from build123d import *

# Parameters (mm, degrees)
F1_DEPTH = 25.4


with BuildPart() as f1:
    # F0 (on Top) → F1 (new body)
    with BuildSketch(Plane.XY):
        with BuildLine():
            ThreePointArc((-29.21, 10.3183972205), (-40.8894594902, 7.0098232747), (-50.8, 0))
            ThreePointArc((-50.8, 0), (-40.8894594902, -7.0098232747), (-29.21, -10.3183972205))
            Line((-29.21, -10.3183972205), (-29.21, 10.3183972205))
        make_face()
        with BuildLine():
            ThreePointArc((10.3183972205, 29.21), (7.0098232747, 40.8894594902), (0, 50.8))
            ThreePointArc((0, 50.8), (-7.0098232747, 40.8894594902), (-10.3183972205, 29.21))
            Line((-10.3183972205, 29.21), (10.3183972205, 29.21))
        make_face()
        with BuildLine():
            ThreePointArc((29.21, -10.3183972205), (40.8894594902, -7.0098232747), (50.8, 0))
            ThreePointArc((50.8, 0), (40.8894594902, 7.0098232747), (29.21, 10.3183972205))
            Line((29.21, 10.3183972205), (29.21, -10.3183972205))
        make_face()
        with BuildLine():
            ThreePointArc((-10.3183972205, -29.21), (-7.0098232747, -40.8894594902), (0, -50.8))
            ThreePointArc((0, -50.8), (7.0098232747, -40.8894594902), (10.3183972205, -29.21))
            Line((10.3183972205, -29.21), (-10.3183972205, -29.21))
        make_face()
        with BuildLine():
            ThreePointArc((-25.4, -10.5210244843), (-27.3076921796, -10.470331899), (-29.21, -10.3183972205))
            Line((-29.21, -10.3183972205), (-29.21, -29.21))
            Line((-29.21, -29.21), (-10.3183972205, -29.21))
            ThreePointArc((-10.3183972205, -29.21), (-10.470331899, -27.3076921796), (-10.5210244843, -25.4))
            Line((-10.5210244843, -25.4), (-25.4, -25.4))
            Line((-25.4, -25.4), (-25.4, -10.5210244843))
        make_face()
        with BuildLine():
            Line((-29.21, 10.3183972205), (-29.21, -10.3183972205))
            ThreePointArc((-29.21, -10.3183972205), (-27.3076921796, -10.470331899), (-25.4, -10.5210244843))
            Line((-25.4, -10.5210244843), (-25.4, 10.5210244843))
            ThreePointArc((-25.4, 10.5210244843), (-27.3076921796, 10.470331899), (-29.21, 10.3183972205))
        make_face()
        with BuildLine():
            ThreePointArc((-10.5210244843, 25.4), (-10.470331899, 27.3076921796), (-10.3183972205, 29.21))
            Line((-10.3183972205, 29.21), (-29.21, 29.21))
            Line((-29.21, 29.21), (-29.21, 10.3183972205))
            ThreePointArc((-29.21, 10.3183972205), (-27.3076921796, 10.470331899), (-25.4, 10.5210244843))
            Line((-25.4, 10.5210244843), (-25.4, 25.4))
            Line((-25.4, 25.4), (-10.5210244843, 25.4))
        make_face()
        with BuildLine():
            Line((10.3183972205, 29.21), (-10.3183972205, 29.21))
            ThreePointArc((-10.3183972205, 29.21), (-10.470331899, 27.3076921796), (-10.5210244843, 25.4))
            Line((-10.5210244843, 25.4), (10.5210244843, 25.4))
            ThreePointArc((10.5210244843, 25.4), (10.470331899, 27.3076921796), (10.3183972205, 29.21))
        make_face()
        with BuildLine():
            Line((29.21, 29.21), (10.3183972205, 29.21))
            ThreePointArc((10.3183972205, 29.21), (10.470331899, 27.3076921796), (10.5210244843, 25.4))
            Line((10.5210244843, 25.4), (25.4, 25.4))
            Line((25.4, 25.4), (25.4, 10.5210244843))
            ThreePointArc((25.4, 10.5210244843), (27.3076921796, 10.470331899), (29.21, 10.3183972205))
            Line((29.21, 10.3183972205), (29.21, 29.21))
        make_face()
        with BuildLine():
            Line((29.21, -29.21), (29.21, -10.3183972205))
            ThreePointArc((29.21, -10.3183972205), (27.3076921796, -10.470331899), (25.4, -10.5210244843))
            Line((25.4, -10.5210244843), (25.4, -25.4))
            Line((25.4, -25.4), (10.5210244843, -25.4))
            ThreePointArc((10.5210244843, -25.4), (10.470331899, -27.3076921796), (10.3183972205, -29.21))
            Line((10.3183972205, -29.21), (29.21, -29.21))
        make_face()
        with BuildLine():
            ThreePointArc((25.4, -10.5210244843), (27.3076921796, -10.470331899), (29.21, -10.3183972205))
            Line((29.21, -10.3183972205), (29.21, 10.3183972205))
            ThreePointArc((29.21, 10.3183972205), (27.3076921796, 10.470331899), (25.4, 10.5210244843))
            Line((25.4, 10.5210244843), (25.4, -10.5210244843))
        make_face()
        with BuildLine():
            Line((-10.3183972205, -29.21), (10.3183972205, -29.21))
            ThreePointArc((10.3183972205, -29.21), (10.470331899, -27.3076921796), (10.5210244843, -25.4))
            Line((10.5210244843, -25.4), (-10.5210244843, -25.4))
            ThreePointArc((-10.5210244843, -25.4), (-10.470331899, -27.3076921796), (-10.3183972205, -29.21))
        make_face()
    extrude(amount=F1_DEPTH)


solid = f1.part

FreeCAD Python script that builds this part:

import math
import FreeCAD as App
import Part
import Sketcher
from FreeCAD import Vector
Q = App.Units.Quantity

doc = App.newDocument("Part")
body = doc.addObject("PartDesign::Body", "Body")

# Sketch on XY plane
sketch1 = body.newObject("Sketcher::SketchObject", "Sketch")
sketch1.AttachmentSupport = (doc.getObject("XY_Plane"), [""])
sketch1.MapMode = "FlatFace"
sketch1.addGeometry(Part.ArcOfCircle(Part.Circle(Vector(-25, -25, 0), Vector(0, 0, 1), 36), math.radians(96), math.radians(135)), False)
sketch1.addGeometry(Part.ArcOfCircle(Part.Circle(Vector(-25, 25, 0), Vector(0, 0, 1), 36), math.radians(-135), math.radians(-96)), False)
sketch1.addGeometry(Part.LineSegment(Vector(-29, -10, 0), Vector(-29, -29, 0)), False)
sketch1.addGeometry(Part.LineSegment(Vector(-29, -29, 0), Vector(-10, -29, 0)), False)
sketch1.addGeometry(Part.ArcOfCircle(Part.Circle(Vector(25, -25, 0), Vector(0, 0, 1), 36), math.radians(-174), math.radians(-135)), False)
sketch1.addGeometry(Part.ArcOfCircle(Part.Circle(Vector(-25, -25, 0), Vector(0, 0, 1), 36), math.radians(-45), math.radians(-6)), False)
sketch1.addGeometry(Part.LineSegment(Vector(10, -29, 0), Vector(29, -29, 0)), False)
sketch1.addGeometry(Part.LineSegment(Vector(29, -29, 0), Vector(29, -10, 0)), False)
sketch1.addGeometry(Part.ArcOfCircle(Part.Circle(Vector(25, 25, 0), Vector(0, 0, 1), 36), math.radians(-84), math.radians(-45)), False)
sketch1.addGeometry(Part.ArcOfCircle(Part.Circle(Vector(25, -25, 0), Vector(0, 0, 1), 36), math.radians(45), math.radians(84)), False)
sketch1.addGeometry(Part.LineSegment(Vector(29, 10, 0), Vector(29, 29, 0)), False)
sketch1.addGeometry(Part.LineSegment(Vector(29, 29, 0), Vector(10, 29, 0)), False)
sketch1.addGeometry(Part.ArcOfCircle(Part.Circle(Vector(-25, 25, 0), Vector(0, 0, 1), 36), math.radians(6), math.radians(45)), False)
sketch1.addGeometry(Part.ArcOfCircle(Part.Circle(Vector(25, 25, 0), Vector(0, 0, 1), 36), math.radians(135), math.radians(174)), False)
sketch1.addGeometry(Part.LineSegment(Vector(-10, 29, 0), Vector(-29, 29, 0)), False)
sketch1.addGeometry(Part.LineSegment(Vector(-29, 29, 0), Vector(-29, 10, 0)), False)
sketch1.addGeometry(Part.LineSegment(Vector(-25, -25, 0), Vector(-25, 25, 0)), False)
sketch1.addGeometry(Part.LineSegment(Vector(-25, 25, 0), Vector(25, 25, 0)), False)
sketch1.addGeometry(Part.LineSegment(Vector(25, 25, 0), Vector(25, -25, 0)), False)
sketch1.addGeometry(Part.LineSegment(Vector(25, -25, 0), Vector(-25, -25, 0)), False)
sketch1.addConstraint(Sketcher.Constraint("Coincident", 0, 2, 1, 1))
sketch1.addConstraint(Sketcher.Constraint("Coincident", 1, 2, 2, 1))
sketch1.addConstraint(Sketcher.Constraint("Coincident", 2, 2, 3, 1))
sketch1.addConstraint(Sketcher.Constraint("Coincident", 3, 2, 4, 1))
sketch1.addConstraint(Sketcher.Constraint("Coincident", 4, 2, 5, 1))
sketch1.addConstraint(Sketcher.Constraint("Coincident", 5, 2, 6, 1))
sketch1.addConstraint(Sketcher.Constraint("Coincident", 6, 2, 7, 1))
sketch1.addConstraint(Sketcher.Constraint("Coincident", 7, 2, 8, 1))
sketch1.addConstraint(Sketcher.Constraint("Coincident", 8, 2, 9, 1))
sketch1.addConstraint(Sketcher.Constraint("Coincident", 9, 2, 10, 1))
sketch1.addConstraint(Sketcher.Constraint("Coincident", 10, 2, 11, 1))
sketch1.addConstraint(Sketcher.Constraint("Coincident", 11, 2, 12, 1))
sketch1.addConstraint(Sketcher.Constraint("Coincident", 12, 2, 13, 1))
sketch1.addConstraint(Sketcher.Constraint("Coincident", 13, 2, 14, 1))
sketch1.addConstraint(Sketcher.Constraint("Coincident", 14, 2, 15, 1))
sketch1.addConstraint(Sketcher.Constraint("Coincident", 15, 2, 0, 1))
sketch1.addConstraint(Sketcher.Constraint("Coincident", 16, 2, 17, 1))
sketch1.addConstraint(Sketcher.Constraint("Coincident", 17, 2, 18, 1))
sketch1.addConstraint(Sketcher.Constraint("Coincident", 18, 2, 19, 1))
sketch1.addConstraint(Sketcher.Constraint("Coincident", 19, 2, 16, 1))
sketch1.addConstraint(Sketcher.Constraint("Vertical", 2))
sketch1.addConstraint(Sketcher.Constraint("Horizontal", 3))
sketch1.addConstraint(Sketcher.Constraint("Horizontal", 6))
sketch1.addConstraint(Sketcher.Constraint("Vertical", 7))
sketch1.addConstraint(Sketcher.Constraint("Vertical", 10))
sketch1.addConstraint(Sketcher.Constraint("Horizontal", 11))
sketch1.addConstraint(Sketcher.Constraint("Horizontal", 14))
sketch1.addConstraint(Sketcher.Constraint("Vertical", 15))
sketch1.addConstraint(Sketcher.Constraint("Vertical", 16))
sketch1.addConstraint(Sketcher.Constraint("Horizontal", 17))
sketch1.addConstraint(Sketcher.Constraint("Vertical", 18))
sketch1.addConstraint(Sketcher.Constraint("Horizontal", 19))
sketch1.addConstraint(Sketcher.Constraint("Coincident", 5, 3, 0, 3))
sketch1.addConstraint(Sketcher.Constraint("Coincident", 9, 3, 4, 3))
sketch1.addConstraint(Sketcher.Constraint("Coincident", 12, 3, 1, 3))
sketch1.addConstraint(Sketcher.Constraint("Coincident", 13, 3, 8, 3))
sketch1.addConstraint(Sketcher.Constraint("Coincident", 16, 2, 1, 3))
sketch1.addConstraint(Sketcher.Constraint("Coincident", 17, 2, 8, 3))
sketch1.addConstraint(Sketcher.Constraint("Coincident", 18, 2, 4, 3))
sketch1.addConstraint(Sketcher.Constraint("Coincident", 19, 2, 0, 3))
sketch1.addConstraint(Sketcher.Constraint("Equal", 0, 1))
sketch1.addConstraint(Sketcher.Constraint("Equal", 1, 4))
sketch1.addConstraint(Sketcher.Constraint("Equal", 4, 5))
sketch1.addConstraint(Sketcher.Constraint("Equal", 5, 8))
sketch1.addConstraint(Sketcher.Constraint("Equal", 8, 9))
sketch1.addConstraint(Sketcher.Constraint("Equal", 9, 12))
sketch1.addConstraint(Sketcher.Constraint("Equal", 12, 13))
sketch1.addConstraint(Sketcher.Constraint("Symmetric", 1, 3, 4, 3, -1, 1))
sketch1.addConstraint(Sketcher.Constraint("Symmetric", 2, 2, 10, 2, -1, 1))
sketch1.addConstraint(Sketcher.Constraint("Symmetric", 6, 2, 14, 2, -1, 1))
sketch1.addConstraint(Sketcher.Constraint("Symmetric", 2, 2, 6, 2, -2))
sketch1.addConstraint(Sketcher.Constraint("Equal", 14, 2))
sketch1.addConstraint(Sketcher.Constraint("Equal", 19, 16))
sketch1.addConstraint(Sketcher.Constraint("DistanceX", 17, 1, 17, 2, Q("2 in")))
sketch1.addConstraint(Sketcher.Constraint("DistanceX", 0, 2, -1, 1, Q("2 in")))
sketch1.addConstraint(Sketcher.Constraint("DistanceX", 1, 2, -1, 1, Q("1.15 in")))
pad1 = body.newObject("PartDesign::Pad", "Pad")
pad1.Profile = sketch1
pad1.Length = Q("1 in")

doc.recompute()
